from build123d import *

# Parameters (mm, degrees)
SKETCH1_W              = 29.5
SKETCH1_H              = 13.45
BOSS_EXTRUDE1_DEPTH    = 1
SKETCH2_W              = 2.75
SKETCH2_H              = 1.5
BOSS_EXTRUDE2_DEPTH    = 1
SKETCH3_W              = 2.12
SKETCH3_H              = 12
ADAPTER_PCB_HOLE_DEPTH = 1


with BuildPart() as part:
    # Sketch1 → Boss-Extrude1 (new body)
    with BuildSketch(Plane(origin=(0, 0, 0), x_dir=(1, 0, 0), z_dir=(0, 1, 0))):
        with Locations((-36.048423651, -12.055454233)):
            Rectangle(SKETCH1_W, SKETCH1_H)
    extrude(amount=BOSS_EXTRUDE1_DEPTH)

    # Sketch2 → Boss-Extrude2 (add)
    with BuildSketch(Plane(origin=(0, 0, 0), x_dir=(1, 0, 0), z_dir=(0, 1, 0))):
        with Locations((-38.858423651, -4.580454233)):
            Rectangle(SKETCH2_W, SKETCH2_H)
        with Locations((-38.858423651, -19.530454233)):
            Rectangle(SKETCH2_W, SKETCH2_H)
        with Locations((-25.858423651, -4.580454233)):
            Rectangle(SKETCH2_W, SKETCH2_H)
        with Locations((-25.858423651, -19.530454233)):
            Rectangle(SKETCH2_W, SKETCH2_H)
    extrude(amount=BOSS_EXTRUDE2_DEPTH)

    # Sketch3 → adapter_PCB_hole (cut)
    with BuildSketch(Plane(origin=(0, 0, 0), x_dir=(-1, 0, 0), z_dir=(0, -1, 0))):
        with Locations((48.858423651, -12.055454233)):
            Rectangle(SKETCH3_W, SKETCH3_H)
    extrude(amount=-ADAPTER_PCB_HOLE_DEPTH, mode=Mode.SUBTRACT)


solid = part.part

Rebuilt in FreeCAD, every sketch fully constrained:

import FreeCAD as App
import Part
import Sketcher
from FreeCAD import Vector
Q = App.Units.Quantity

doc = App.newDocument("Part")
body = doc.addObject("PartDesign::Body", "Body")

# Sketch on XZ plane
sketch1 = body.newObject("Sketcher::SketchObject", "Sketch")
sketch1.AttachmentSupport = (doc.getObject("XZ_Plane"), [""])
sketch1.MapMode = "FlatFace"
sketch1.addGeometry([
    Part.LineSegment(Vector(-51, 5, 0), Vector(-51, 19, 0)),
    Part.LineSegment(Vector(-51, 19, 0), Vector(-21, 19, 0)),
    Part.LineSegment(Vector(-21, 19, 0), Vector(-21, 5, 0)),
    Part.LineSegment(Vector(-21, 5, 0), Vector(-51, 5, 0)),
], False)
sketch1.addConstraint([
    Sketcher.Constraint("Coincident", 0, 2, 1, 1),
    Sketcher.Constraint("Coincident", 1, 2, 2, 1),
    Sketcher.Constraint("Coincident", 2, 2, 3, 1),
    Sketcher.Constraint("Coincident", 3, 2, 0, 1),
    Sketcher.Constraint("Vertical", 0),
    Sketcher.Constraint("Horizontal", 1),
    Sketcher.Constraint("Vertical", 2),
    Sketcher.Constraint("Horizontal", 3),
    Sketcher.Constraint("DistanceX", 1, 1, 1, 2, Q("29.5 mm")),
    Sketcher.Constraint("DistanceY", 0, 1, 0, 2, Q("13.45 mm")),
    Sketcher.Constraint("DistanceX", 0, 2, -1, 1, Q("50.798424 mm")),
    Sketcher.Constraint("DistanceY", -1, 1, 0, 2, Q("18.780454 mm")),
])
pad1 = body.newObject("PartDesign::Pad", "Pad")
pad1.Profile = sketch1
pad1.Length = 1
pad1.Reversed = True

# Sketch on XZ plane
sketch2 = body.newObject("Sketcher::SketchObject", "Sketch001")
sketch2.AttachmentSupport = (doc.getObject("XZ_Plane"), [""])
sketch2.MapMode = "FlatFace"
sketch2.addGeometry([
    Part.LineSegment(Vector(-40.2, 3.8, 0), Vector(-40.2, 5.3, 0)),  # 0
    Part.LineSegment(Vector(-40.2, 5.3, 0), Vector(-37.5, 5.3, 0)),  # 1
    Part.LineSegment(Vector(-37.5, 5.3, 0), Vector(-37.5, 3.8, 0)),  # 2
    Part.LineSegment(Vector(-37.5, 3.8, 0), Vector(-40.2, 3.8, 0)),  # 3
    Part.LineSegment(Vector(-40.2, 18.8, 0), Vector(-40.2, 20.3, 0)),  # 4
    Part.LineSegment(Vector(-40.2, 20.3, 0), Vector(-37.5, 20.3, 0)),  # 5
    Part.LineSegment(Vector(-37.5, 20.3, 0), Vector(-37.5, 18.8, 0)),  # 6
    Part.LineSegment(Vector(-37.5, 18.8, 0), Vector(-40.2, 18.8, 0)),  # 7
    Part.LineSegment(Vector(-27.2, 3.8, 0), Vector(-27.2, 5.3, 0)),  # 8
    Part.LineSegment(Vector(-27.2, 5.3, 0), Vector(-24.5, 5.3, 0)),  # 9
    Part.LineSegment(Vector(-24.5, 5.3, 0), Vector(-24.5, 3.8, 0)),  # 10
    Part.LineSegment(Vector(-24.5, 3.8, 0), Vector(-27.2, 3.8, 0)),  # 11
    Part.LineSegment(Vector(-27.2, 18.8, 0), Vector(-27.2, 20.3, 0)),  # 12
    Part.LineSegment(Vector(-27.2, 20.3, 0), Vector(-24.5, 20.3, 0)),  # 13
    Part.LineSegment(Vector(-24.5, 20.3, 0), Vector(-24.5, 18.8, 0)),  # 14
    Part.LineSegment(Vector(-24.5, 18.8, 0), Vector(-27.2, 18.8, 0)),  # 15
], False)
sketch2.addConstraint([
    Sketcher.Constraint("Coincident", 0, 2, 1, 1),
    Sketcher.Constraint("Coincident", 1, 2, 2, 1),
    Sketcher.Constraint("Coincident", 2, 2, 3, 1),
    Sketcher.Constraint("Coincident", 3, 2, 0, 1),
    Sketcher.Constraint("Coincident", 4, 2, 5, 1),
    Sketcher.Constraint("Coincident", 5, 2, 6, 1),
    Sketcher.Constraint("Coincident", 6, 2, 7, 1),
    Sketcher.Constraint("Coincident", 7, 2, 4, 1),
    Sketcher.Constraint("Coincident", 8, 2, 9, 1),
    Sketcher.Constraint("Coincident", 9, 2, 10, 1),
    Sketcher.Constraint("Coincident", 10, 2, 11, 1),
    Sketcher.Constraint("Coincident", 11, 2, 8, 1),
    Sketcher.Constraint("Coincident", 12, 2, 13, 1),
    Sketcher.Constraint("Coincident", 13, 2, 14, 1),
    Sketcher.Constraint("Coincident", 14, 2, 15, 1),
    Sketcher.Constraint("Coincident", 15, 2, 12, 1),
    Sketcher.Constraint("Vertical", 0),
    Sketcher.Constraint("Horizontal", 1),
    Sketcher.Constraint("Vertical", 2),
    Sketcher.Constraint("Horizontal", 3),
    Sketcher.Constraint("Vertical", 4),
    Sketcher.Constraint("Horizontal", 5),
    Sketcher.Constraint("Vertical", 6),
    Sketcher.Constraint("Horizontal", 7),
    Sketcher.Constraint("Vertical", 8),
    Sketcher.Constraint("Horizontal", 9),
    Sketcher.Constraint("Vertical", 10),
    Sketcher.Constraint("Horizontal", 11),
    Sketcher.Constraint("Vertical", 12),
    Sketcher.Constraint("Horizontal", 13),
    Sketcher.Constraint("Vertical", 14),
    Sketcher.Constraint("Horizontal", 15),
    Sketcher.Constraint("Horizontal", 1, 2, 8, 2),
    Sketcher.Constraint("Horizontal", 3, 2, 10, 2),
    Sketcher.Constraint("Horizontal", 5, 2, 12, 2),
    Sketcher.Constraint("Horizontal", 7, 2, 14, 2),
    Sketcher.Constraint("Vertical", 3, 2, 4, 2),
    Sketcher.Constraint("Vertical", 2, 2, 5, 2),
    Sketcher.Constraint("Vertical", 11, 2, 12, 2),
    Sketcher.Constraint("Vertical", 10, 2, 13, 2),
    Sketcher.Constraint("Equal", 7, 9),
    Sketcher.Constraint("Equal", 2, 4),
    Sketcher.Constraint("DistanceY", 0, 1, 0, 2, Q("1.5 mm")),
    Sketcher.Constraint("DistanceX", 0, 2, 8, 2, Q("13 mm")),
    Sketcher.Constraint("DistanceX", 1, 1, 1, 2, Q("2.75 mm")),
    Sketcher.Constraint("DistanceY", 0, 2, 4, 2, Q("14.95 mm")),
    Sketcher.Constraint("DistanceX", 0, 2, -1, 1, Q("40.233424 mm")),
    Sketcher.Constraint("DistanceY", -1, 1, 0, 2, Q("5.330454 mm")),
])
pad2 = body.newObject("PartDesign::Pad", "Pad001")
pad2.Profile = sketch2
pad2.Length = 1
pad2.Reversed = True

# Sketch on XZ plane
sketch3 = body.newObject("Sketcher::SketchObject", "Sketch002")
sketch3.AttachmentSupport = (doc.getObject("XZ_Plane"), [""])
sketch3.MapMode = "FlatFace"
sketch3.addGeometry([
    Part.LineSegment(Vector(-47.8, 6.1, 0), Vector(-47.8, 18.1, 0)),
    Part.LineSegment(Vector(-47.8, 18.1, 0), Vector(-49.9, 18.1, 0)),
    Part.LineSegment(Vector(-49.9, 18.1, 0), Vector(-49.9, 6.1, 0)),
    Part.LineSegment(Vector(-49.9, 6.1, 0), Vector(-47.8, 6.1, 0)),
], False)
sketch3.addConstraint([
    Sketcher.Constraint("Coincident", 0, 2, 1, 1),
    Sketcher.Constraint("Coincident", 1, 2, 2, 1),
    Sketcher.Constraint("Coincident", 2, 2, 3, 1),
    Sketcher.Constraint("Coincident", 3, 2, 0, 1),
    Sketcher.Constraint("Vertical", 0),
    Sketcher.Constraint("Horizontal", 1),
    Sketcher.Constraint("Vertical", 2),
    Sketcher.Constraint("Horizontal", 3),
    Sketcher.Constraint("DistanceY", 0, 1, 0, 2, Q("12 mm")),
    Sketcher.Constraint("DistanceX", 1, 2, 1, 1, Q("2.12 mm")),
    Sketcher.Constraint("DistanceX", 0, 2, -1, 1, Q("47.798424 mm")),
    Sketcher.Constraint("DistanceY", -1, 1, 0, 2, Q("18.055454 mm")),
])
pocket1 = body.newObject("PartDesign::Pocket", "Pocket")
pocket1.Profile = sketch3
pocket1.Length = 1

doc.recompute()
